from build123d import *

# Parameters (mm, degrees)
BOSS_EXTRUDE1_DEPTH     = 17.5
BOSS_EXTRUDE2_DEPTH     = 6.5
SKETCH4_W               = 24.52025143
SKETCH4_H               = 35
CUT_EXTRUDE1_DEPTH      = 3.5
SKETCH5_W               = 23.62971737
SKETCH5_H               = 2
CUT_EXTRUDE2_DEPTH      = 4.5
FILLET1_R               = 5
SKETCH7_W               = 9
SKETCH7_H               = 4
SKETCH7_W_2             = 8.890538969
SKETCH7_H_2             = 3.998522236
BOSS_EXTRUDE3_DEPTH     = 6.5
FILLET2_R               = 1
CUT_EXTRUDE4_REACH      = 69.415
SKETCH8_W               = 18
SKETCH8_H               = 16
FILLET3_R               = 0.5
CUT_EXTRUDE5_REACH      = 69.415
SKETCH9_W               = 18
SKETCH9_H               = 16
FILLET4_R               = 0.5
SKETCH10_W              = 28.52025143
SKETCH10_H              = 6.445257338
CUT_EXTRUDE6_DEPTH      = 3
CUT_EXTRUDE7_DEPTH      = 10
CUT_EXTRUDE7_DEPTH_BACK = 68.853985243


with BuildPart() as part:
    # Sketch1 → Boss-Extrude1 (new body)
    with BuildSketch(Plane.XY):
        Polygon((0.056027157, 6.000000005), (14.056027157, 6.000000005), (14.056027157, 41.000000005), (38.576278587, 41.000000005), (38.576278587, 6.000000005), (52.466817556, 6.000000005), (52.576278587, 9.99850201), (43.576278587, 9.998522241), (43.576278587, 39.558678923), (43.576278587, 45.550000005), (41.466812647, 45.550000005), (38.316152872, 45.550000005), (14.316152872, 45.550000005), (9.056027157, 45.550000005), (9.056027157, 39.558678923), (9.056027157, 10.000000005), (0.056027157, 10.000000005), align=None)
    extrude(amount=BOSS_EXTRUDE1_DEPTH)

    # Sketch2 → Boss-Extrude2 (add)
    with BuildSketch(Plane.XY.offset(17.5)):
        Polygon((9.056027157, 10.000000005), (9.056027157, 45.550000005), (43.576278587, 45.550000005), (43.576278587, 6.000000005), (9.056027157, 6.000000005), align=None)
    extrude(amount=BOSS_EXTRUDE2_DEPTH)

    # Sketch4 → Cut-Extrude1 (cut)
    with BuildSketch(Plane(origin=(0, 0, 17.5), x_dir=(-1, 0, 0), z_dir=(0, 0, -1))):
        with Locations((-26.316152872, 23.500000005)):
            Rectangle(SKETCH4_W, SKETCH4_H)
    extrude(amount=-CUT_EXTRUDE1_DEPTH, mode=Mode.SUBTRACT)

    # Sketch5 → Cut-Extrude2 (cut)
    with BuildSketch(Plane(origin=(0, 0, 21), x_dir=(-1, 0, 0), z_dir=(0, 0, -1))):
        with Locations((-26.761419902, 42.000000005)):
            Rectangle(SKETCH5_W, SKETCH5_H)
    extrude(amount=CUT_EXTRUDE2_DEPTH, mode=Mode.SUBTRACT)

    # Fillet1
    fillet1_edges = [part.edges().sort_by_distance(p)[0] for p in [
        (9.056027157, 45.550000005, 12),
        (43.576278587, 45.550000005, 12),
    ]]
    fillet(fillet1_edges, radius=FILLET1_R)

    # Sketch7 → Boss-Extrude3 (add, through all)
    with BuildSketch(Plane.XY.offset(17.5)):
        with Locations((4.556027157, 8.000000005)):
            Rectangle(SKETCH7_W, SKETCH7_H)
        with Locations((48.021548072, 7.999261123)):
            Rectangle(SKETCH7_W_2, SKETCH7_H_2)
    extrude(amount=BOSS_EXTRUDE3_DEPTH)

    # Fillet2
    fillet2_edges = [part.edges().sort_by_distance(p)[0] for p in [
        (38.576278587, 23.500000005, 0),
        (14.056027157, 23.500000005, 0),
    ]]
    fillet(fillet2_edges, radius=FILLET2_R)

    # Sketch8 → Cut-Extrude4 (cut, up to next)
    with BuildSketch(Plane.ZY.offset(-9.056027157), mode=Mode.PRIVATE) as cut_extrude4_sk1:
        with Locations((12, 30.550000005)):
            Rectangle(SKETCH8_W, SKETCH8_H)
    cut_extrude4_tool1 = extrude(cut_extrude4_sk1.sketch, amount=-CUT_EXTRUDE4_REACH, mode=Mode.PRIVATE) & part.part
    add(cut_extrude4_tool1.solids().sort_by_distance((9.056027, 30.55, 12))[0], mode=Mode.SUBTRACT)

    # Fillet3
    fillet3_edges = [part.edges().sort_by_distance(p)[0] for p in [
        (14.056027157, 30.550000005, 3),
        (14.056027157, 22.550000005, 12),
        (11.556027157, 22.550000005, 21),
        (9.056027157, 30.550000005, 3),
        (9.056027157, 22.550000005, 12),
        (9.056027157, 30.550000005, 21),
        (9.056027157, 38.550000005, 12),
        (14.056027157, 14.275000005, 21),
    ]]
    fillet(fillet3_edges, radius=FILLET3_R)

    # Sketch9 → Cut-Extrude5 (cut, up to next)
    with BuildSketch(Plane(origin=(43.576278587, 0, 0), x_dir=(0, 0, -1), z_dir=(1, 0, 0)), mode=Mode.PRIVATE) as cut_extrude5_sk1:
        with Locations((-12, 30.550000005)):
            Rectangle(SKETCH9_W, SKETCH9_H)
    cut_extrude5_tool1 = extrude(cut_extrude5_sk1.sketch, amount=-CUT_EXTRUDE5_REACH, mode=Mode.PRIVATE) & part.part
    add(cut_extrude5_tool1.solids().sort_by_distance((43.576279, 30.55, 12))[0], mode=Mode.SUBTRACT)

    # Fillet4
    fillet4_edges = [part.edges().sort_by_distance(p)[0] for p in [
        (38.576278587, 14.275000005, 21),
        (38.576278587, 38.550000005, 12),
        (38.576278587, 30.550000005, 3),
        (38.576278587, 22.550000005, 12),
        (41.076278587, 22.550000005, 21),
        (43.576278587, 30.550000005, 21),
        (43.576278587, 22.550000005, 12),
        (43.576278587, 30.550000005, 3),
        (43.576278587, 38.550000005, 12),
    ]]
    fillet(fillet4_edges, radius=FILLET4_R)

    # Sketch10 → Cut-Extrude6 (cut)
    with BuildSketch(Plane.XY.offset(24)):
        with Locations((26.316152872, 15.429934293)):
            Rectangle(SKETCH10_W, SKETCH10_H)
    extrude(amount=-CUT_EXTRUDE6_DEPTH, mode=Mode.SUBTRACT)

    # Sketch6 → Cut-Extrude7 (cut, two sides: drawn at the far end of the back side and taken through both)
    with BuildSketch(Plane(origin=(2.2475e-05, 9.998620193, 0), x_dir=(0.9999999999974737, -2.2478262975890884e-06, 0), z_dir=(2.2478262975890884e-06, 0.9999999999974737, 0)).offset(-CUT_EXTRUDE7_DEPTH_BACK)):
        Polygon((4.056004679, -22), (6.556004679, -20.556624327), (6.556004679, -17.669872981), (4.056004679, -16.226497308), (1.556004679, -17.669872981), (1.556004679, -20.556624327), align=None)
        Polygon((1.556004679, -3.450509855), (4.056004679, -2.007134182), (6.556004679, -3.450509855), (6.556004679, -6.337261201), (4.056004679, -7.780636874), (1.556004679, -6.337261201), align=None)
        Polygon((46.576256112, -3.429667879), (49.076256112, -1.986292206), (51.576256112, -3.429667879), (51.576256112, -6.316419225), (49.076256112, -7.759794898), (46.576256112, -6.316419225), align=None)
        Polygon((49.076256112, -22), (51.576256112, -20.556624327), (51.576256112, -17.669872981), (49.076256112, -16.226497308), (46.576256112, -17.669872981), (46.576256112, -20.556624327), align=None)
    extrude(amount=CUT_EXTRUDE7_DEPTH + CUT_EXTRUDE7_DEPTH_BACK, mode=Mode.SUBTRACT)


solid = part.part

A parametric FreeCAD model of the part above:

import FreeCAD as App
import Part
import Sketcher

V = App.Vector
Q = App.Units.Quantity


def edges_at(feature, points):
    """Names of the edges that pass closest to the given points."""
    edges = feature.Shape.Edges
    near = lambda p: min(range(len(edges)), key=lambda i: edges[i].distToShape(Part.Vertex(*p))[0])
    return sorted({f"Edge{near(p) + 1}" for p in points})


def add_polygon(sketch, points):
    """Adds a closed chain of lines whose ends are joined by coincident constraints."""
    first, n = sketch.GeometryCount, len(points)
    for a, b in zip(points, points[1:] + points[:1]):
        sketch.addGeometry(Part.LineSegment(App.Vector(*a, 0), App.Vector(*b, 0)), False)
    for i in range(n):
        sketch.addConstraint(Sketcher.Constraint("Coincident", first + i, 2, first + (i + 1) % n, 1))

doc = App.newDocument("Part")
body = doc.addObject("PartDesign::Body", "Body")

sketch1 = body.newObject("Sketcher::SketchObject", "Sketch")
sketch1.AttachmentSupport = (doc.getObject("XY_Plane"), [""])
sketch1.MapMode = "FlatFace"
add_polygon(sketch1, [(0.056027, 6), (14.056027, 6), (14.056027, 41), (38.576279, 41), (38.576279, 6), (52.466818, 6), (52.576279, 9.998502), (43.576279, 9.998522), (43.576279, 45.55), (9.056027, 45.55), (9.056027, 10), (0.056027, 10)])
sketch1.addConstraint(Sketcher.Constraint("Horizontal", 0))
sketch1.addConstraint(Sketcher.Constraint("Vertical", 1))
sketch1.addConstraint(Sketcher.Constraint("Horizontal", 2))
sketch1.addConstraint(Sketcher.Constraint("Vertical", 3))
sketch1.addConstraint(Sketcher.Constraint("Horizontal", 4))
sketch1.addConstraint(Sketcher.Constraint("Vertical", 7))
sketch1.addConstraint(Sketcher.Constraint("Horizontal", 8))
sketch1.addConstraint(Sketcher.Constraint("Vertical", 9))
sketch1.addConstraint(Sketcher.Constraint("Horizontal", 10))
sketch1.addConstraint(Sketcher.Constraint("Vertical", 11))
sketch1.addConstraint(Sketcher.Constraint("Horizontal", 0, 2, 3, 2))
sketch1.addConstraint(Sketcher.Constraint("DistanceX", 0, 1, 0, 2, Q("14 mm")))
sketch1.addConstraint(Sketcher.Constraint("DistanceX", 10, 2, 10, 1, Q("9 mm")))
sketch1.addConstraint(Sketcher.Constraint("DistanceY", 1, 1, 1, 2, Q("35 mm")))
sketch1.addConstraint(Sketcher.Constraint("DistanceY", 11, 2, 11, 1, Q("4 mm")))
sketch1.addConstraint(Sketcher.Constraint("Distance", 5, Q("4 mm")))
sketch1.addConstraint(Sketcher.Constraint("Distance", 6, Q("9 mm")))
sketch1.addConstraint(Sketcher.Constraint("DistanceY", -1, 1, 0, 2, Q("6 mm")))
sketch1.addConstraint(Sketcher.Constraint("DistanceX", 3, 2, 5, 2, Q("14 mm")))
sketch1.addConstraint(Sketcher.Constraint("DistanceY", 9, 2, 9, 1, Q("35.55 mm")))
sketch1.addConstraint(Sketcher.Constraint("DistanceX", 2, 1, 2, 2, Q("24.520251 mm")))
sketch1.addConstraint(Sketcher.Constraint("DistanceX", 4, 1, 4, 2, Q("13.890539 mm")))
sketch1.addConstraint(Sketcher.Constraint("DistanceY", 7, 1, 7, 2, Q("35.551478 mm")))
sketch1.addConstraint(Sketcher.Constraint("DistanceX", -1, 1, 2, 2, Q("38.576279 mm")))
pad1 = body.newObject("PartDesign::Pad", "Pad")
pad1.Profile = sketch1
pad1.Length = 17.5

sketch2 = body.newObject("Sketcher::SketchObject", "Sketch001")
sketch2.AttachmentSupport = (doc.getObject("XY_Plane"), [""])
sketch2.MapMode = "FlatFace"
sketch2.AttachmentOffset = App.Placement(V(0, 0, 17.5), App.Rotation())
add_polygon(sketch2, [(9.056027, 45.55), (9.056027, 6), (43.576279, 6), (43.576279, 45.55)])
sketch2.addConstraint(Sketcher.Constraint("Vertical", 0))
sketch2.addConstraint(Sketcher.Constraint("Horizontal", 1))
sketch2.addConstraint(Sketcher.Constraint("Vertical", 2))
sketch2.addConstraint(Sketcher.Constraint("Horizontal", 3))
sketch2.addConstraint(Sketcher.Constraint("DistanceY", -1, 1, 0, 2, Q("6 mm")))
sketch2.addConstraint(Sketcher.Constraint("DistanceY", 0, 2, 0, 1, Q("39.55 mm")))
sketch2.addConstraint(Sketcher.Constraint("DistanceX", 1, 1, 1, 2, Q("34.520251 mm")))
sketch2.addConstraint(Sketcher.Constraint("DistanceX", -1, 1, 1, 2, Q("43.576279 mm")))
pad2 = body.newObject("PartDesign::Pad", "Pad001")
pad2.Profile = sketch2
pad2.Length = 6.5

sketch3 = body.newObject("Sketcher::SketchObject", "Sketch002")
sketch3.AttachmentSupport = (doc.getObject("XY_Plane"), [""])
sketch3.MapMode = "FlatFace"
sketch3.AttachmentOffset = App.Placement(V(0, 0, 17.5), App.Rotation())
add_polygon(sketch3, [(38.576279, 41), (38.576279, 6), (14.056027, 6), (14.056027, 41)])
sketch3.addConstraint(Sketcher.Constraint("Vertical", 0))
sketch3.addConstraint(Sketcher.Constraint("Horizontal", 1))
sketch3.addConstraint(Sketcher.Constraint("Vertical", 2))
sketch3.addConstraint(Sketcher.Constraint("Horizontal", 3))
sketch3.addConstraint(Sketcher.Constraint("DistanceY", 0, 2, 0, 1, Q("35 mm")))
sketch3.addConstraint(Sketcher.Constraint("DistanceY", -1, 1, 0, 2, Q("6 mm")))
sketch3.addConstraint(Sketcher.Constraint("DistanceX", 1, 2, 1, 1, Q("24.520251 mm")))
sketch3.addConstraint(Sketcher.Constraint("DistanceX", -1, 1, 0, 2, Q("38.576279 mm")))
pocket1 = body.newObject("PartDesign::Pocket", "Pocket")
pocket1.Profile = sketch3
pocket1.Length = 3.5
pocket1.Reversed = True

sketch4 = body.newObject("Sketcher::SketchObject", "Sketch003")
sketch4.AttachmentSupport = (doc.getObject("XY_Plane"), [""])
sketch4.MapMode = "FlatFace"
sketch4.AttachmentOffset = App.Placement(V(0, 0, 21), App.Rotation())
add_polygon(sketch4, [(38.576279, 43), (38.576279, 41), (14.946561, 41), (14.946561, 43)])
sketch4.addConstraint(Sketcher.Constraint("Vertical", 0))
sketch4.addConstraint(Sketcher.Constraint("Horizontal", 1))
sketch4.addConstraint(Sketcher.Constraint("Vertical", 2))
sketch4.addConstraint(Sketcher.Constraint("Horizontal", 3))
sketch4.addConstraint(Sketcher.Constraint("DistanceY", 0, 2, 0, 1, Q("2 mm")))
sketch4.addConstraint(Sketcher.Constraint("DistanceY", -1, 1, 0, 2, Q("41 mm")))
sketch4.addConstraint(Sketcher.Constraint("DistanceX", 1, 2, 1, 1, Q("23.629717 mm")))
sketch4.addConstraint(Sketcher.Constraint("DistanceX", -1, 1, 0, 2, Q("38.576279 mm")))
pocket2 = body.newObject("PartDesign::Pocket", "Pocket001")
pocket2.Profile = sketch4
pocket2.Length = 4.5
doc.recompute()

fillet = body.newObject("PartDesign::Fillet", "Fillet")
fillet.Base = (pocket2, edges_at(pocket2, [(9.056, 45.55, 12), (43.576, 45.55, 12)]))
fillet.Radius = 5

sketch5 = body.newObject("Sketcher::SketchObject", "Sketch004")
sketch5.AttachmentSupport = (doc.getObject("XY_Plane"), [""])
sketch5.MapMode = "FlatFace"
sketch5.AttachmentOffset = App.Placement(V(0, 0, 17.5), App.Rotation())
add_polygon(sketch5, [(0.056027, 10), (0.056027, 6), (9.056027, 6), (9.056027, 10)])
add_polygon(sketch5, [(43.576279, 9.998522), (43.576279, 6), (52.466818, 6), (52.466818, 9.998522)])
sketch5.addConstraint(Sketcher.Constraint("Vertical", 0))
sketch5.addConstraint(Sketcher.Constraint("Horizontal", 1))
sketch5.addConstraint(Sketcher.Constraint("Vertical", 2))
sketch5.addConstraint(Sketcher.Constraint("Horizontal", 3))
sketch5.addConstraint(Sketcher.Constraint("Vertical", 4))
sketch5.addConstraint(Sketcher.Constraint("Horizontal", 5))
sketch5.addConstraint(Sketcher.Constraint("Vertical", 6))
sketch5.addConstraint(Sketcher.Constraint("Horizontal", 7))
sketch5.addConstraint(Sketcher.Constraint("Horizontal", 1, 2, 4, 2))
sketch5.addConstraint(Sketcher.Constraint("DistanceX", 1, 1, 1, 2, Q("9 mm")))
sketch5.addConstraint(Sketcher.Constraint("DistanceY", 0, 2, 0, 1, Q("4 mm")))
sketch5.addConstraint(Sketcher.Constraint("DistanceY", -1, 1, 0, 2, Q("6 mm")))
sketch5.addConstraint(Sketcher.Constraint("DistanceX", 5, 1, 5, 2, Q("8.890539 mm")))
sketch5.addConstraint(Sketcher.Constraint("DistanceY", 4, 2, 4, 1, Q("3.998522 mm")))
sketch5.addConstraint(Sketcher.Constraint("DistanceX", -1, 1, 4, 2, Q("43.576279 mm")))
sketch5.addConstraint(Sketcher.Constraint("DistanceX", 1, 2, 4, 2, Q("34.520251 mm")))
pad3 = body.newObject("PartDesign::Pad", "Pad002")
pad3.Profile = sketch5
pad3.Type = "UpToLast"
doc.recompute()

fillet2 = body.newObject("PartDesign::Fillet", "Fillet001")
fillet2.Base = (pad3, edges_at(pad3, [(38.576, 23.5, 0), (14.056, 23.5, 0)]))
fillet2.Radius = 1

sketch6 = body.newObject("Sketcher::SketchObject", "Sketch005")
sketch6.AttachmentSupport = (doc.getObject("YZ_Plane"), [""])
sketch6.MapMode = "FlatFace"
sketch6.AttachmentOffset = App.Placement(V(0, 0, 9.056027), App.Rotation())
add_polygon(sketch6, [(38.55, 3), (22.55, 3), (22.55, 21), (38.55, 21)])
sketch6.addConstraint(Sketcher.Constraint("Horizontal", 0))
sketch6.addConstraint(Sketcher.Constraint("Vertical", 1))
sketch6.addConstraint(Sketcher.Constraint("Horizontal", 2))
sketch6.addConstraint(Sketcher.Constraint("Vertical", 3))
sketch6.addConstraint(Sketcher.Constraint("DistanceX", 0, 2, 0, 1, Q("16 mm")))
sketch6.addConstraint(Sketcher.Constraint("DistanceY", 1, 1, 1, 2, Q("18 mm")))
sketch6.addConstraint(Sketcher.Constraint("DistanceY", -1, 1, 0, 2, Q("3 mm")))
sketch6.addConstraint(Sketcher.Constraint("DistanceX", -1, 1, 0, 2, Q("22.55 mm")))
pocket3 = body.newObject("PartDesign::Pocket", "Pocket002")
pocket3.Profile = sketch6
pocket3.Type = "UpToFirst"
pocket3.Reversed = True
doc.recompute()

fillet3 = body.newObject("PartDesign::Fillet", "Fillet002")
fillet3.Base = (pocket3, edges_at(pocket3, [
    (14.056, 30.55, 3),
    (14.056, 22.55, 12),
    (11.556, 22.55, 21),
    (9.056, 30.55, 3),
    (9.056, 22.55, 12),
    (9.056, 30.55, 21),
    (9.056, 38.55, 12),
    (14.056, 14.275, 21),
]))
fillet3.Radius = 0.5

sketch7 = body.newObject("Sketcher::SketchObject", "Sketch006")
sketch7.AttachmentSupport = (doc.getObject("YZ_Plane"), [""])
sketch7.MapMode = "FlatFace"
sketch7.AttachmentOffset = App.Placement(V(0, 0, 43.576279), App.Rotation())
add_polygon(sketch7, [(38.55, 21), (22.55, 21), (22.55, 3), (38.55, 3)])
sketch7.addConstraint(Sketcher.Constraint("Horizontal", 0))
sketch7.addConstraint(Sketcher.Constraint("Vertical", 1))
sketch7.addConstraint(Sketcher.Constraint("Horizontal", 2))
sketch7.addConstraint(Sketcher.Constraint("Vertical", 3))
sketch7.addConstraint(Sketcher.Constraint("DistanceX", 0, 2, 0, 1, Q("16 mm")))
sketch7.addConstraint(Sketcher.Constraint("DistanceY", 1, 2, 1, 1, Q("18 mm")))
sketch7.addConstraint(Sketcher.Constraint("DistanceY", -1, 1, 0, 2, Q("21 mm")))
sketch7.addConstraint(Sketcher.Constraint("DistanceX", -1, 1, 0, 2, Q("22.55 mm")))
pocket4 = body.newObject("PartDesign::Pocket", "Pocket003")
pocket4.Profile = sketch7
pocket4.Type = "UpToFirst"
doc.recompute()

fillet4 = body.newObject("PartDesign::Fillet", "Fillet003")
fillet4.Base = (pocket4, edges_at(pocket4, [
    (38.576, 14.275, 21),
    (38.576, 38.55, 12),
    (38.576, 30.55, 3),
    (38.576, 22.55, 12),
    (41.076, 22.55, 21),
    (43.576, 30.55, 21),
    (43.576, 22.55, 12),
    (43.576, 30.55, 3),
    (43.576, 38.55, 12),
]))
fillet4.Radius = 0.5

sketch8 = body.newObject("Sketcher::SketchObject", "Sketch007")
sketch8.AttachmentSupport = (doc.getObject("XY_Plane"), [""])
sketch8.MapMode = "FlatFace"
sketch8.AttachmentOffset = App.Placement(V(0, 0, 24), App.Rotation())
add_polygon(sketch8, [(12.056027, 18.652563), (12.056027, 12.207306), (40.576279, 12.207306), (40.576279, 18.652563)])
sketch8.addConstraint(Sketcher.Constraint("Vertical", 0))
sketch8.addConstraint(Sketcher.Constraint("Horizontal", 1))
sketch8.addConstraint(Sketcher.Constraint("Vertical", 2))
sketch8.addConstraint(Sketcher.Constraint("Horizontal", 3))
sketch8.addConstraint(Sketcher.Constraint("DistanceX", 1, 1, 1, 2, Q("28.520251 mm")))
sketch8.addConstraint(Sketcher.Constraint("DistanceY", 0, 2, 0, 1, Q("6.445257 mm")))
sketch8.addConstraint(Sketcher.Constraint("DistanceX", -1, 1, 1, 2, Q("40.576279 mm")))
sketch8.addConstraint(Sketcher.Constraint("DistanceY", -1, 1, 0, 2, Q("12.207306 mm")))
pocket5 = body.newObject("PartDesign::Pocket", "Pocket004")
pocket5.Profile = sketch8
pocket5.Length = 3

sketch9 = body.newObject("Sketcher::SketchObject", "Sketch008")
sketch9.AttachmentSupport = (doc.getObject("XZ_Plane"), [""])
sketch9.MapMode = "FlatFace"
sketch9.AttachmentOffset = App.Placement(V(0, 0, -9.99862), App.Rotation())
add_polygon(sketch9, [(4.056027, 22), (6.556027, 20.556624), (6.556027, 17.669873), (4.056027, 16.226497), (1.556027, 17.669873), (1.556027, 20.556624)])
add_polygon(sketch9, [(4.056027, 2.007134), (1.556027, 3.45051), (1.556027, 6.337261), (4.056027, 7.780637), (6.556027, 6.337261), (6.556027, 3.45051)])
add_polygon(sketch9, [(49.076279, 1.986292), (46.576279, 3.429668), (46.576279, 6.316419), (49.076279, 7.759795), (51.576279, 6.316419), (51.576279, 3.429668)])
add_polygon(sketch9, [(49.076279, 22), (51.576279, 20.556624), (51.576279, 17.669873), (49.076279, 16.226497), (46.576279, 17.669873), (46.576279, 20.556624)])
sketch9.addConstraint(Sketcher.Constraint("Vertical", 1))
sketch9.addConstraint(Sketcher.Constraint("Vertical", 4))
sketch9.addConstraint(Sketcher.Constraint("Vertical", 7))
sketch9.addConstraint(Sketcher.Constraint("Vertical", 10))
sketch9.addConstraint(Sketcher.Constraint("Vertical", 13))
sketch9.addConstraint(Sketcher.Constraint("Vertical", 16))
sketch9.addConstraint(Sketcher.Constraint("Vertical", 19))
sketch9.addConstraint(Sketcher.Constraint("Vertical", 22))
sketch9.addConstraint(Sketcher.Constraint("Parallel", 0, 3))
sketch9.addConstraint(Sketcher.Constraint("Parallel", 2, 5))
sketch9.addConstraint(Sketcher.Constraint("Parallel", 3, 6))
sketch9.addConstraint(Sketcher.Constraint("Parallel", 5, 8))
sketch9.addConstraint(Sketcher.Constraint("Parallel", 6, 9))
sketch9.addConstraint(Sketcher.Constraint("Parallel", 8, 11))
sketch9.addConstraint(Sketcher.Constraint("Parallel", 9, 12))
sketch9.addConstraint(Sketcher.Constraint("Parallel", 11, 14))
sketch9.addConstraint(Sketcher.Constraint("Parallel", 12, 15))
sketch9.addConstraint(Sketcher.Constraint("Parallel", 14, 17))
sketch9.addConstraint(Sketcher.Constraint("Parallel", 15, 18))
sketch9.addConstraint(Sketcher.Constraint("Parallel", 17, 20))
sketch9.addConstraint(Sketcher.Constraint("Parallel", 18, 21))
sketch9.addConstraint(Sketcher.Constraint("Parallel", 20, 23))
sketch9.addConstraint(Sketcher.Constraint("Horizontal", 1, 2, 3, 2))
sketch9.addConstraint(Sketcher.Constraint("Horizontal", 0, 2, 4, 2))
sketch9.addConstraint(Sketcher.Constraint("Horizontal", 7, 2, 9, 2))
sketch9.addConstraint(Sketcher.Constraint("Horizontal", 6, 2, 10, 2))
sketch9.addConstraint(Sketcher.Constraint("Horizontal", 13, 2, 15, 2))
sketch9.addConstraint(Sketcher.Constraint("Horizontal", 12, 2, 16, 2))
sketch9.addConstraint(Sketcher.Constraint("Horizontal", 4, 2, 18, 2))
sketch9.addConstraint(Sketcher.Constraint("Horizontal", 3, 2, 19, 2))
sketch9.addConstraint(Sketcher.Constraint("Horizontal", 2, 2, 20, 2))
sketch9.addConstraint(Sketcher.Constraint("Horizontal", 19, 2, 21, 2))
sketch9.addConstraint(Sketcher.Constraint("Horizontal", 18, 2, 22, 2))
sketch9.addConstraint(Sketcher.Constraint("Vertical", 2, 2, 5, 2))
sketch9.addConstraint(Sketcher.Constraint("Vertical", 4, 2, 6, 2))
sketch9.addConstraint(Sketcher.Constraint("Vertical", 5, 2, 8, 2))
sketch9.addConstraint(Sketcher.Constraint("Vertical", 16, 2, 18, 2))
sketch9.addConstraint(Sketcher.Constraint("Vertical", 17, 2, 20, 2))
sketch9.addConstraint(Sketcher.Constraint("Equal", 4, 7))
sketch9.addConstraint(Sketcher.Constraint("Equal", 10, 13))
sketch9.addConstraint(Sketcher.Constraint("Angle", 0, Q("-30 deg")))
sketch9.addConstraint(Sketcher.Constraint("DistanceY", -1, 1, 5, 2, Q("22 mm")))
sketch9.addConstraint(Sketcher.Constraint("DistanceX", 3, 2, 1, 2, Q("5 mm")))
sketch9.addConstraint(Sketcher.Constraint("DistanceY", 1, 2, 1, 1, Q("2.886751 mm")))
sketch9.addConstraint(Sketcher.Constraint("DistanceY", -1, 1, 6, 2, Q("3.45051 mm")))
sketch9.addConstraint(Sketcher.Constraint("DistanceX", -1, 1, 12, 2, Q("46.576279 mm")))
sketch9.addConstraint(Sketcher.Constraint("DistanceY", -1, 1, 13, 2, Q("6.316419 mm")))
sketch9.addConstraint(Sketcher.Constraint("DistanceX", 10, 2, 12, 2, Q("40.020251 mm")))
pocket6 = body.newObject("PartDesign::Pocket", "Pocket005")
pocket6.Profile = sketch9
pocket6.Type = "ThroughAll"
pocket6.Midplane = True

doc.recompute()
